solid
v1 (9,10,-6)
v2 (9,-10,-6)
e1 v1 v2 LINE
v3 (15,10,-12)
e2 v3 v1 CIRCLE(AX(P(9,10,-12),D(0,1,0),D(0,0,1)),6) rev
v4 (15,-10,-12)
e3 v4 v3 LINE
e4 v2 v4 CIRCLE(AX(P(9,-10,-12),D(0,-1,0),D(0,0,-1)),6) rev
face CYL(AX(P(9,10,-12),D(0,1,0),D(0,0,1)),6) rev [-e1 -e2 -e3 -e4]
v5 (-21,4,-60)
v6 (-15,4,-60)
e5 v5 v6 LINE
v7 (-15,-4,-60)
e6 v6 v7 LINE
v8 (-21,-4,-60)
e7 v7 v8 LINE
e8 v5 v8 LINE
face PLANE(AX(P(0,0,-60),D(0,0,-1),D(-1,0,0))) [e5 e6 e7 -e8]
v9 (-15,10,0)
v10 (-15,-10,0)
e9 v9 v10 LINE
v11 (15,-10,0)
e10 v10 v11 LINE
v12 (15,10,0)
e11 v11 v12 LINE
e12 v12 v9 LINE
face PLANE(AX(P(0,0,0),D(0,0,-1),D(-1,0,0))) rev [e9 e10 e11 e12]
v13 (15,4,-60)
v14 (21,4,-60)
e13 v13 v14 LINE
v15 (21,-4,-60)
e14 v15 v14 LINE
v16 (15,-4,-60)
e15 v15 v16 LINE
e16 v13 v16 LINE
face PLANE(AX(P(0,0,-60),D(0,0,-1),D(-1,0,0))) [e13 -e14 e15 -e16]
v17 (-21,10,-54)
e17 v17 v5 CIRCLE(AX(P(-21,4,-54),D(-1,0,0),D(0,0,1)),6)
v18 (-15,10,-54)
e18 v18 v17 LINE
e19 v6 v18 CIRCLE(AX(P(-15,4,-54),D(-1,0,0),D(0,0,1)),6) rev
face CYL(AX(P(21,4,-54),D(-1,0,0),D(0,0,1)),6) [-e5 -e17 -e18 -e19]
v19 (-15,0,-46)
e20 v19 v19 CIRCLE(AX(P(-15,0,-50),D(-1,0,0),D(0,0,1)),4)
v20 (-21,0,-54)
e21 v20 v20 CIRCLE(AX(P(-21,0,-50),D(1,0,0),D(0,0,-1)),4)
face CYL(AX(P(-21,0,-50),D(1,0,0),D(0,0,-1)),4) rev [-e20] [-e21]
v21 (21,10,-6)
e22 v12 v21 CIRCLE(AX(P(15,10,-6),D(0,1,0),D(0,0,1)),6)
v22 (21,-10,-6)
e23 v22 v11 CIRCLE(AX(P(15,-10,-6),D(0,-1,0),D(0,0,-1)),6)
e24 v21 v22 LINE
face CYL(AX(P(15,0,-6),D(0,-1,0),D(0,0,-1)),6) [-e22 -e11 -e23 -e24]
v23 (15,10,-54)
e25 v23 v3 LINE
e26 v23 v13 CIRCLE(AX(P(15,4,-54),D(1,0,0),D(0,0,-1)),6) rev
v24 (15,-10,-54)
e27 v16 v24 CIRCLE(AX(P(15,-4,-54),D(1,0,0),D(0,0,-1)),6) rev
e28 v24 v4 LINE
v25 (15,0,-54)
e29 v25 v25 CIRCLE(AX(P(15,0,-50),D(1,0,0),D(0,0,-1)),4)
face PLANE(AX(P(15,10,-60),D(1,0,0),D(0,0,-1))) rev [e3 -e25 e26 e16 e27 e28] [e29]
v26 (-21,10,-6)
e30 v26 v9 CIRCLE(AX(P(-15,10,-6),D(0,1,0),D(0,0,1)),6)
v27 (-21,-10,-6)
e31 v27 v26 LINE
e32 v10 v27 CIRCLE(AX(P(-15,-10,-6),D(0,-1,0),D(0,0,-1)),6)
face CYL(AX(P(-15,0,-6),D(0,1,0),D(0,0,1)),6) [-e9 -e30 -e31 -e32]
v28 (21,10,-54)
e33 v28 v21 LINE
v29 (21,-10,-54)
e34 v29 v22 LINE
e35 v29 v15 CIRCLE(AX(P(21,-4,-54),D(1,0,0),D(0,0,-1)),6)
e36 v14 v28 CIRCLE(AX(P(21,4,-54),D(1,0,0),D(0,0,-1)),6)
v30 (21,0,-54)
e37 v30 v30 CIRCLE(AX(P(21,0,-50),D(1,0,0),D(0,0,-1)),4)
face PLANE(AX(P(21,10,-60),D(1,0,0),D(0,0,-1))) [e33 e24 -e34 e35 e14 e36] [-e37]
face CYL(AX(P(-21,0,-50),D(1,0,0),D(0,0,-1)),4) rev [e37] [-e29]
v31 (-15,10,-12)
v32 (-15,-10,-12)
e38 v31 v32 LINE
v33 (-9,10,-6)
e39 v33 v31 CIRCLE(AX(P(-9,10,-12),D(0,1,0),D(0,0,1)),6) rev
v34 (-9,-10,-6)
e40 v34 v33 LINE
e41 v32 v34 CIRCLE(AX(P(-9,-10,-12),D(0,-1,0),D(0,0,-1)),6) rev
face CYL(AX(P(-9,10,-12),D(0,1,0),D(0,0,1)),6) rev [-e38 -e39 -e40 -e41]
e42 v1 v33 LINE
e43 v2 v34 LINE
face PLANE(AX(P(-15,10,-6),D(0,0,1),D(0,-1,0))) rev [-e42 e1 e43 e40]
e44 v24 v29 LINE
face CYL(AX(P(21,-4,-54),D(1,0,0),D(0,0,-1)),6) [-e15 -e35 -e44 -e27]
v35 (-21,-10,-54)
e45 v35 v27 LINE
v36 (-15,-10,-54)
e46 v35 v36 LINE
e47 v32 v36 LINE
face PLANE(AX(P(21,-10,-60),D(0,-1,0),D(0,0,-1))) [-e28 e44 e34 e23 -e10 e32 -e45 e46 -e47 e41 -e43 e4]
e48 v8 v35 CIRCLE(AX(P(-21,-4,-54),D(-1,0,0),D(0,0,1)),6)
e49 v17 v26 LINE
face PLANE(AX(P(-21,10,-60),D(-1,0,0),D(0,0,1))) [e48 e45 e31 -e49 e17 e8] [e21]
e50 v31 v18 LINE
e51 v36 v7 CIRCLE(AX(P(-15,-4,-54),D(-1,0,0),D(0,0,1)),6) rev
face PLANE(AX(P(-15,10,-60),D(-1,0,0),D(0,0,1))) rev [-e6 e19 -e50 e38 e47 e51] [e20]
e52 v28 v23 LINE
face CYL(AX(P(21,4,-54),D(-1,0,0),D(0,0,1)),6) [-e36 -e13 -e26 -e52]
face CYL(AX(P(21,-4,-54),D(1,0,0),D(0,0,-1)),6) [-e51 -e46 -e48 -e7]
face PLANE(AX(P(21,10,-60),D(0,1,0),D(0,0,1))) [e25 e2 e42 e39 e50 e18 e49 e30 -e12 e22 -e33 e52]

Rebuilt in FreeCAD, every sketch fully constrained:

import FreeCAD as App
import Part
import Sketcher
from FreeCAD import Vector
Q = App.Units.Quantity


def edges_at(feature, points):
    """Names of the edges that pass closest to the given points."""
    edges = feature.Shape.Edges
    near = lambda p: min(range(len(edges)), key=lambda i: edges[i].distToShape(Part.Vertex(*p))[0])
    return sorted({f"Edge{near(p) + 1}" for p in points})

doc = App.newDocument("Part")
params = doc.addObject("Spreadsheet::Sheet", "Params")
for row, (alias, value) in enumerate([
    ("sketch1_width", "42 mm"),
    ("sketch1_height", "20 mm"),
    ("pad1_length", "60 mm"),
    ("sketch2_width", "30 mm"),
    ("sketch2_height", "54 mm"),
    ("fillet_radius", "6 mm"),
    ("sketch3_diameter", "8 mm"),
], start=1):
    params.set(f"A{row}", alias)
    params.set(f"B{row}", "=" + value)
    params.setAlias(f"B{row}", alias)

body = doc.addObject("PartDesign::Body", "Body")

# Sketch on XY plane
sketch1 = body.newObject("Sketcher::SketchObject", "Sketch")
sketch1.AttachmentSupport = (doc.getObject("XY_Plane"), [""])
sketch1.MapMode = "FlatFace"
sketch1.addGeometry(Part.LineSegment(Vector(-21, 10, 0), Vector(-21, -10, 0)), False)
sketch1.addGeometry(Part.LineSegment(Vector(-21, -10, 0), Vector(21, -10, 0)), False)
sketch1.addGeometry(Part.LineSegment(Vector(21, -10, 0), Vector(21, 10, 0)), False)
sketch1.addGeometry(Part.LineSegment(Vector(21, 10, 0), Vector(-21, 10, 0)), False)
sketch1.addConstraint(Sketcher.Constraint("Coincident", 0, 2, 1, 1))
sketch1.addConstraint(Sketcher.Constraint("Coincident", 1, 2, 2, 1))
sketch1.addConstraint(Sketcher.Constraint("Coincident", 2, 2, 3, 1))
sketch1.addConstraint(Sketcher.Constraint("Coincident", 3, 2, 0, 1))
sketch1.addConstraint(Sketcher.Constraint("Vertical", 0))
sketch1.addConstraint(Sketcher.Constraint("Horizontal", 1))
sketch1.addConstraint(Sketcher.Constraint("Vertical", 2))
sketch1.addConstraint(Sketcher.Constraint("Horizontal", 3))
sketch1.addConstraint(Sketcher.Constraint("Symmetric", 0, 2, 2, 2, -1, 1))
sketch1.addConstraint(Sketcher.Constraint("DistanceX", 1, 1, 1, 2, Q("42 mm")))
sketch1.addConstraint(Sketcher.Constraint("DistanceY", 0, 2, 0, 1, Q("20 mm")))
sketch1.setExpression("Constraints[9]", "Params.sketch1_width")
sketch1.setExpression("Constraints[10]", "Params.sketch1_height")
pad1 = body.newObject("PartDesign::Pad", "Pad")
pad1.Profile = sketch1
pad1.setExpression("Length", "Params.pad1_length")
pad1.Reversed = True

# Sketch on XZ plane
sketch2 = body.newObject("Sketcher::SketchObject", "Sketch001")
sketch2.AttachmentSupport = (doc.getObject("XZ_Plane"), [""])
sketch2.MapMode = "FlatFace"
sketch2.AttachmentOffset = App.Placement(Vector(0, 0, 10), App.Rotation())
sketch2.addGeometry(Part.LineSegment(Vector(-15, -6, 0), Vector(-15, -60, 0)), False)
sketch2.addGeometry(Part.LineSegment(Vector(-15, -60, 0), Vector(15, -60, 0)), False)
sketch2.addGeometry(Part.LineSegment(Vector(15, -60, 0), Vector(15, -6, 0)), False)
sketch2.addGeometry(Part.LineSegment(Vector(15, -6, 0), Vector(-15, -6, 0)), False)
sketch2.addConstraint(Sketcher.Constraint("Coincident", 0, 2, 1, 1))
sketch2.addConstraint(Sketcher.Constraint("Coincident", 1, 2, 2, 1))
sketch2.addConstraint(Sketcher.Constraint("Coincident", 2, 2, 3, 1))
sketch2.addConstraint(Sketcher.Constraint("Coincident", 3, 2, 0, 1))
sketch2.addConstraint(Sketcher.Constraint("Vertical", 0))
sketch2.addConstraint(Sketcher.Constraint("Horizontal", 1))
sketch2.addConstraint(Sketcher.Constraint("Vertical", 2))
sketch2.addConstraint(Sketcher.Constraint("Horizontal", 3))
sketch2.addConstraint(Sketcher.Constraint("DistanceX", 1, 1, 1, 2, Q("30 mm")))
sketch2.addConstraint(Sketcher.Constraint("DistanceY", 0, 2, 0, 1, Q("54 mm")))
sketch2.addConstraint(Sketcher.Constraint("DistanceX", 0, 2, -1, 1, Q("15 mm")))
sketch2.addConstraint(Sketcher.Constraint("DistanceY", 0, 2, -1, 1, Q("60 mm")))
sketch2.setExpression("Constraints[8]", "Params.sketch2_width")
sketch2.setExpression("Constraints[9]", "Params.sketch2_height")
pocket1 = body.newObject("PartDesign::Pocket", "Pocket")
pocket1.Profile = sketch2
pocket1.Type = "ThroughAll"
doc.recompute()

fillet = body.newObject("PartDesign::Fillet", "Fillet")
fillet.Base = (pocket1, edges_at(pocket1, [
    (18, 10, -60),
    (-18, 10, -60),
    (18, -10, -60),
    (-15, 0, -6),
    (15, 0, -6),
    (21, 0, 0),
    (-21, 0, 0),
    (-18, -10, -60),
]))
fillet.setExpression("Radius", "Params.fillet_radius")

# Sketch on YZ plane
sketch3 = body.newObject("Sketcher::SketchObject", "Sketch002")
sketch3.AttachmentSupport = (doc.getObject("YZ_Plane"), [""])
sketch3.MapMode = "FlatFace"
sketch3.AttachmentOffset = App.Placement(Vector(0, 0, 21), App.Rotation())
sketch3.addGeometry(Part.Circle(Vector(0, -50, 0), Vector(0, 0, 1), 4), False)
sketch3.addConstraint(Sketcher.Constraint("PointOnObject", 0, 3, -2))
sketch3.addConstraint(Sketcher.Constraint("Diameter", 0, Q("8 mm")))
sketch3.addConstraint(Sketcher.Constraint("DistanceY", 0, 3, -1, 1, Q("50 mm")))
sketch3.setExpression("Constraints[1]", "Params.sketch3_diameter")
pocket2 = body.newObject("PartDesign::Pocket", "Pocket001")
pocket2.Profile = sketch3
pocket2.Type = "ThroughAll"

doc.recompute()
